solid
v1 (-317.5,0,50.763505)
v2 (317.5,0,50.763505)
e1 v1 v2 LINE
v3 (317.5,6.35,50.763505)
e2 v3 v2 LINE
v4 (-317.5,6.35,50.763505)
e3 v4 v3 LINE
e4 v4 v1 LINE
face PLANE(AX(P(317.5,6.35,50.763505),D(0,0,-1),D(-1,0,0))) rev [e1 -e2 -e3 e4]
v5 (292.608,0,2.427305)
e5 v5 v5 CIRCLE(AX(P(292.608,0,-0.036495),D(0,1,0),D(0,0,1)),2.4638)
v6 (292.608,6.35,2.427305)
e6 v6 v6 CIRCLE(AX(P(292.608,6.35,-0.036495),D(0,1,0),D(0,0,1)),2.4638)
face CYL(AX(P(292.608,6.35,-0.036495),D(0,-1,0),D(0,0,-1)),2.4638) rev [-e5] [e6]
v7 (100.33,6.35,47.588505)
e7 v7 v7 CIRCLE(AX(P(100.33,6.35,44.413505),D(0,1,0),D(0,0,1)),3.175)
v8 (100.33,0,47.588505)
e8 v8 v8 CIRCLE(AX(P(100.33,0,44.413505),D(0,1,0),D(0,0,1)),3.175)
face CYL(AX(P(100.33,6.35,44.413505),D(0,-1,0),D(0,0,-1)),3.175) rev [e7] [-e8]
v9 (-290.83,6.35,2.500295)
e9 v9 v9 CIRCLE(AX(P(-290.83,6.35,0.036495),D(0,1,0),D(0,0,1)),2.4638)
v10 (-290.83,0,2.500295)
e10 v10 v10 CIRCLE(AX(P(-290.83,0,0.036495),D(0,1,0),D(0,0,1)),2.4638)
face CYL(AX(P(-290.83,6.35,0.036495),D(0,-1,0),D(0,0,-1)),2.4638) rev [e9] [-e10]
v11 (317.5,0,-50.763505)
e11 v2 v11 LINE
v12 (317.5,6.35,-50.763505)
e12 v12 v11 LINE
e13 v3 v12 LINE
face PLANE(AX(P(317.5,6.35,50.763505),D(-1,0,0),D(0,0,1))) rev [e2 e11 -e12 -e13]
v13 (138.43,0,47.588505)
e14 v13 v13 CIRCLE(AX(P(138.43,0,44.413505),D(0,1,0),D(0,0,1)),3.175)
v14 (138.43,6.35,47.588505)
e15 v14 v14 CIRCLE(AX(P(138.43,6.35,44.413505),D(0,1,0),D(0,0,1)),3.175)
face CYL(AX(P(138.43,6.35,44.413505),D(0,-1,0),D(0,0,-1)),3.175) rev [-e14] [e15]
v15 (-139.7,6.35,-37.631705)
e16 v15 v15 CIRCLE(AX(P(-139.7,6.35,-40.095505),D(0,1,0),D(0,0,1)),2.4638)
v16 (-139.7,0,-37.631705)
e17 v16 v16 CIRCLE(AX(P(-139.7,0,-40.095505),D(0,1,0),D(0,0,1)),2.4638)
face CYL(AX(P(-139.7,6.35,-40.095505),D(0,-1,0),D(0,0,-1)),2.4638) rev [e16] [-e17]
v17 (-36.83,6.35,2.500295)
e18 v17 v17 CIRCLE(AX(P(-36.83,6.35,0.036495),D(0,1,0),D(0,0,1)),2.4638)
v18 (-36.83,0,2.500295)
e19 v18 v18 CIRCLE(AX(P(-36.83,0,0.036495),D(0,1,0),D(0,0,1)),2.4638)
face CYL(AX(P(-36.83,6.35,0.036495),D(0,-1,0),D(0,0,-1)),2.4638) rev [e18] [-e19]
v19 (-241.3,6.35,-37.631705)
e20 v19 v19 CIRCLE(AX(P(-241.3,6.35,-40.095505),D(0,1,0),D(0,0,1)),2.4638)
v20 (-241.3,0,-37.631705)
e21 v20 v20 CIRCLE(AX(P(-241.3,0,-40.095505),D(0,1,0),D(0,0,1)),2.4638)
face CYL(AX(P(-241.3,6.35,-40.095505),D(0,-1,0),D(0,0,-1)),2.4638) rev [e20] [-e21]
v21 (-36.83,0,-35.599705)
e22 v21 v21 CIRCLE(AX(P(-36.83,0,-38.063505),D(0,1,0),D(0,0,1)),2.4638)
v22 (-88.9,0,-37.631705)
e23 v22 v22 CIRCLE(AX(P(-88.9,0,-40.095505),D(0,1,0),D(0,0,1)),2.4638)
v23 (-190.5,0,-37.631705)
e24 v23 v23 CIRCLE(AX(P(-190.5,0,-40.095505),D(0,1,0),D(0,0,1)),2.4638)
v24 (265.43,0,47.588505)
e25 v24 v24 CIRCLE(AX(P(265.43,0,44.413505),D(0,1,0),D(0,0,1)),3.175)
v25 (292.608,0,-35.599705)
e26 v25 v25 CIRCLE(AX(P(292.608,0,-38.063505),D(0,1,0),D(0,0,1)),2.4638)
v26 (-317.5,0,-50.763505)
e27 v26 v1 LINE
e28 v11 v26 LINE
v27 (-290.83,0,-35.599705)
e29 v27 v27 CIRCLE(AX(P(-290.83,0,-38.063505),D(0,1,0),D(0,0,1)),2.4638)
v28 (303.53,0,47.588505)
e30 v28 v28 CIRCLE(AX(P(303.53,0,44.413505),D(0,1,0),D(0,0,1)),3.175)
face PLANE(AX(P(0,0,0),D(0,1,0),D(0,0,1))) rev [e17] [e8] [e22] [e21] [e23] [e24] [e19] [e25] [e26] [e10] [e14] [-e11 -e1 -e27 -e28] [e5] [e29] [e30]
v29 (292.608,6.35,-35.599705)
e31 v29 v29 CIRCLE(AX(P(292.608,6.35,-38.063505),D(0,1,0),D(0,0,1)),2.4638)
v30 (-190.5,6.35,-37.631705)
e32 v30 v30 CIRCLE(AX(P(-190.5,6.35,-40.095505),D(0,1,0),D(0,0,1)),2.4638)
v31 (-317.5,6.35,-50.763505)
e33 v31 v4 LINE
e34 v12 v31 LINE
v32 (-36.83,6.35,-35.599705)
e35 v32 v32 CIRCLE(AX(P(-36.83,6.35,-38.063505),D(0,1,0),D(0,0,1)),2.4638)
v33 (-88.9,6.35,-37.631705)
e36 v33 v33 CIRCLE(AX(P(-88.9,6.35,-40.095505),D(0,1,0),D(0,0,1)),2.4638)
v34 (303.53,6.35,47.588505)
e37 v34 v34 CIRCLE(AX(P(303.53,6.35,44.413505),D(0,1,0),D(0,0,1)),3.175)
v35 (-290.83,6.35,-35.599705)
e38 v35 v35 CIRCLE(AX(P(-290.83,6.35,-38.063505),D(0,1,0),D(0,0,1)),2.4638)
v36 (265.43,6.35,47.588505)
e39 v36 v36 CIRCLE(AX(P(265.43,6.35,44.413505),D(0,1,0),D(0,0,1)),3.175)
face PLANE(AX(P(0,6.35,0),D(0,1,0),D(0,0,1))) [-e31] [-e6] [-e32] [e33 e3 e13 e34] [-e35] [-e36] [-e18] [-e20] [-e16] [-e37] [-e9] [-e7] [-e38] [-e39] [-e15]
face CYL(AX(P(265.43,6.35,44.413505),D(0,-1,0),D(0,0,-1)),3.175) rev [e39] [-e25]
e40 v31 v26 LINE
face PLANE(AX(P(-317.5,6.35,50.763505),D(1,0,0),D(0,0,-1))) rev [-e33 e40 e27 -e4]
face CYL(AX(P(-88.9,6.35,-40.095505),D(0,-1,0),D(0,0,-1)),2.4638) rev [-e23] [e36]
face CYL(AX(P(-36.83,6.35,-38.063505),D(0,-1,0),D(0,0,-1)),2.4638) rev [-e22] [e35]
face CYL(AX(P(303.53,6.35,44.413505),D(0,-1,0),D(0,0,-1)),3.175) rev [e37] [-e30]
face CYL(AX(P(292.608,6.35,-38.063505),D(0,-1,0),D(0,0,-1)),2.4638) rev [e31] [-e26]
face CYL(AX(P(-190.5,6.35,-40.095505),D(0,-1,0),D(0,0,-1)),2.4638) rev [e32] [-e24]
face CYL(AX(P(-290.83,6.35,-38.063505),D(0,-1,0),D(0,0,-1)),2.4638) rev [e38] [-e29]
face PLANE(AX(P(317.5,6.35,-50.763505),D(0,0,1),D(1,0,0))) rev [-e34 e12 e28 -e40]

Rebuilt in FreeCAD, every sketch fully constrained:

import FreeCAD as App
import Part
import Sketcher

V = App.Vector
Q = App.Units.Quantity


def add_polygon(sketch, points):
    """Adds a closed chain of lines whose ends are joined by coincident constraints."""
    first, n = sketch.GeometryCount, len(points)
    for a, b in zip(points, points[1:] + points[:1]):
        sketch.addGeometry(Part.LineSegment(App.Vector(*a, 0), App.Vector(*b, 0)), False)
    for i in range(n):
        sketch.addConstraint(Sketcher.Constraint("Coincident", first + i, 2, first + (i + 1) % n, 1))

doc = App.newDocument("Part")
params = doc.addObject("Spreadsheet::Sheet", "Params")
for row, (alias, value) in enumerate([
    ("sketch1_diameter", "0.25 in"),
    ("sketch1_width", "25 in"),
    ("sketch1_diameter2", "0.194 in"),
    ("pad1_length", "0.25 in"),
], start=1):
    params.set(f"A{row}", alias)
    params.set(f"B{row}", "=" + value)
    params.setAlias(f"B{row}", alias)

body = doc.addObject("PartDesign::Body", "Body")

# Sketch on XZ plane
sketch1 = body.newObject("Sketcher::SketchObject", "Sketch")
sketch1.AttachmentSupport = (doc.getObject("XZ_Plane"), [""])
sketch1.MapMode = "FlatFace"
add_polygon(sketch1, [(-317.5, -50.8), (-317.5, 50.8), (317.5, 50.8), (317.5, -50.8)])  # lines 0-3
sketch1.addGeometry(Part.Circle(V(100.3, 44.4, 0), V(0, 0, 1), 3.2), False)  # 4
sketch1.addGeometry(Part.Circle(V(138.4, 44.4, 0), V(0, 0, 1), 3.2), False)  # 5
sketch1.addGeometry(Part.Circle(V(265.4, 44.4, 0), V(0, 0, 1), 3.2), False)  # 6
sketch1.addGeometry(Part.Circle(V(303.5, 44.4, 0), V(0, 0, 1), 3.2), False)  # 7
sketch1.addGeometry(Part.Circle(V(-290.8, 0, 0), V(0, 0, 1), 2.5), False)  # 8
sketch1.addGeometry(Part.Circle(V(-36.8, 0, 0), V(0, 0, 1), 2.5), False)  # 9
sketch1.addGeometry(Part.Circle(V(-290.8, -38.1, 0), V(0, 0, 1), 2.5), False)  # 10
sketch1.addGeometry(Part.Circle(V(-241.3, -40.1, 0), V(0, 0, 1), 2.5), False)  # 11
sketch1.addGeometry(Part.Circle(V(-190.5, -40.1, 0), V(0, 0, 1), 2.5), False)  # 12
sketch1.addGeometry(Part.Circle(V(-139.7, -40.1, 0), V(0, 0, 1), 2.5), False)  # 13
sketch1.addGeometry(Part.Circle(V(-88.9, -40.1, 0), V(0, 0, 1), 2.5), False)  # 14
sketch1.addGeometry(Part.Circle(V(-36.8, -38.1, 0), V(0, 0, 1), 2.5), False)  # 15
sketch1.addGeometry(Part.Circle(V(292.6, 0, 0), V(0, 0, 1), 2.5), False)  # 16
sketch1.addGeometry(Part.Circle(V(292.6, -38.1, 0), V(0, 0, 1), 2.5), False)  # 17
sketch1.addConstraint(Sketcher.Constraint("Vertical", 0))
sketch1.addConstraint(Sketcher.Constraint("Horizontal", 1))
sketch1.addConstraint(Sketcher.Constraint("Vertical", 2))
sketch1.addConstraint(Sketcher.Constraint("Horizontal", 3))
sketch1.addConstraint(Sketcher.Constraint("Equal", 4, 5))
sketch1.addConstraint(Sketcher.Constraint("Equal", 5, 6))
sketch1.addConstraint(Sketcher.Constraint("Equal", 6, 7))
sketch1.addConstraint(Sketcher.Constraint("Equal", 8, 9))
sketch1.addConstraint(Sketcher.Constraint("Equal", 9, 10))
sketch1.addConstraint(Sketcher.Constraint("Equal", 10, 11))
sketch1.addConstraint(Sketcher.Constraint("Equal", 11, 12))
sketch1.addConstraint(Sketcher.Constraint("Equal", 12, 13))
sketch1.addConstraint(Sketcher.Constraint("Equal", 13, 14))
sketch1.addConstraint(Sketcher.Constraint("Equal", 14, 15))
sketch1.addConstraint(Sketcher.Constraint("Equal", 15, 16))
sketch1.addConstraint(Sketcher.Constraint("Equal", 16, 17))
sketch1.addConstraint(Sketcher.Constraint("Symmetric", 0, 2, 2, 2, -1, 1))
sketch1.addConstraint(Sketcher.Constraint("Horizontal", 4, 3, 5, 3))
sketch1.addConstraint(Sketcher.Constraint("Horizontal", 5, 3, 6, 3))
sketch1.addConstraint(Sketcher.Constraint("Horizontal", 6, 3, 7, 3))
sketch1.addConstraint(Sketcher.Constraint("Horizontal", 8, 3, 9, 3))
sketch1.addConstraint(Sketcher.Constraint("Horizontal", 11, 3, 12, 3))
sketch1.addConstraint(Sketcher.Constraint("Horizontal", 12, 3, 13, 3))
sketch1.addConstraint(Sketcher.Constraint("Horizontal", 13, 3, 14, 3))
sketch1.addConstraint(Sketcher.Constraint("Horizontal", 10, 3, 15, 3))
sketch1.addConstraint(Sketcher.Constraint("Horizontal", 15, 3, 17, 3))
sketch1.addConstraint(Sketcher.Constraint("Vertical", 8, 3, 10, 3))
sketch1.addConstraint(Sketcher.Constraint("Vertical", 9, 3, 15, 3))
sketch1.addConstraint(Sketcher.Constraint("Vertical", 16, 3, 17, 3))
sketch1.addConstraint(Sketcher.Constraint("Diameter", 4, Q("0.25 in")))
sketch1.addConstraint(Sketcher.Constraint("DistanceX", 1, 1, 1, 2, Q("25 in")))
sketch1.addConstraint(Sketcher.Constraint("Diameter", 8, Q("0.194 in")))
sketch1.addConstraint(Sketcher.Constraint("DistanceX", 5, 3, 6, 3, Q("5 in")))
sketch1.addConstraint(Sketcher.Constraint("DistanceX", 4, 3, 7, 3, Q("8 in")))
sketch1.addConstraint(Sketcher.Constraint("DistanceX", 8, 3, 9, 3, Q("10 in")))
sketch1.addConstraint(Sketcher.Constraint("DistanceX", 11, 3, 12, 3, Q("2 in")))
sketch1.addConstraint(Sketcher.Constraint("DistanceX", 12, 3, 13, 3, Q("2 in")))
sketch1.addConstraint(Sketcher.Constraint("DistanceX", 13, 3, 14, 3, Q("2 in")))
sketch1.addConstraint(Sketcher.Constraint("DistanceX", 0, 2, 11, 3, Q("3 in")))
sketch1.addConstraint(Sketcher.Constraint("DistanceY", 16, 3, 1, 2, Q("2 in")))
sketch1.addConstraint(Sketcher.Constraint("DistanceY", 3, 2, 8, 3, Q("2 in")))
sketch1.addConstraint(Sketcher.Constraint("DistanceX", 4, 3, 5, 3, Q("1.5 in")))
sketch1.addConstraint(Sketcher.Constraint("DistanceX", 8, 3, 4, 3, Q("15.4 in")))
sketch1.addConstraint(Sketcher.Constraint("DistanceY", 10, 3, 8, 3, Q("1.5 in")))
sketch1.addConstraint(Sketcher.Constraint("DistanceX", -1, 1, 4, 3, Q("3.95 in")))
sketch1.addConstraint(Sketcher.Constraint("DistanceX", -1, 1, 16, 3, Q("11.52 in")))
sketch1.addConstraint(Sketcher.Constraint("DistanceY", 11, 3, 10, 3, Q("0.08 in")))
sketch1.addConstraint(Sketcher.Constraint("DistanceY", 16, 3, 7, 3, Q("1.75 in")))
sketch1.addConstraint(Sketcher.Constraint("DistanceY", 0, 1, 0, 2, Q("101.52701 mm")))
sketch1.setExpression("Constraints[33]", "Params.sketch1_diameter")
sketch1.setExpression("Constraints[34]", "Params.sketch1_width")
sketch1.setExpression("Constraints[35]", "Params.sketch1_diameter2")
pad1 = body.newObject("PartDesign::Pad", "Pad")
pad1.Profile = sketch1
pad1.setExpression("Length", "Params.pad1_length")
pad1.Reversed = True

doc.recompute()
